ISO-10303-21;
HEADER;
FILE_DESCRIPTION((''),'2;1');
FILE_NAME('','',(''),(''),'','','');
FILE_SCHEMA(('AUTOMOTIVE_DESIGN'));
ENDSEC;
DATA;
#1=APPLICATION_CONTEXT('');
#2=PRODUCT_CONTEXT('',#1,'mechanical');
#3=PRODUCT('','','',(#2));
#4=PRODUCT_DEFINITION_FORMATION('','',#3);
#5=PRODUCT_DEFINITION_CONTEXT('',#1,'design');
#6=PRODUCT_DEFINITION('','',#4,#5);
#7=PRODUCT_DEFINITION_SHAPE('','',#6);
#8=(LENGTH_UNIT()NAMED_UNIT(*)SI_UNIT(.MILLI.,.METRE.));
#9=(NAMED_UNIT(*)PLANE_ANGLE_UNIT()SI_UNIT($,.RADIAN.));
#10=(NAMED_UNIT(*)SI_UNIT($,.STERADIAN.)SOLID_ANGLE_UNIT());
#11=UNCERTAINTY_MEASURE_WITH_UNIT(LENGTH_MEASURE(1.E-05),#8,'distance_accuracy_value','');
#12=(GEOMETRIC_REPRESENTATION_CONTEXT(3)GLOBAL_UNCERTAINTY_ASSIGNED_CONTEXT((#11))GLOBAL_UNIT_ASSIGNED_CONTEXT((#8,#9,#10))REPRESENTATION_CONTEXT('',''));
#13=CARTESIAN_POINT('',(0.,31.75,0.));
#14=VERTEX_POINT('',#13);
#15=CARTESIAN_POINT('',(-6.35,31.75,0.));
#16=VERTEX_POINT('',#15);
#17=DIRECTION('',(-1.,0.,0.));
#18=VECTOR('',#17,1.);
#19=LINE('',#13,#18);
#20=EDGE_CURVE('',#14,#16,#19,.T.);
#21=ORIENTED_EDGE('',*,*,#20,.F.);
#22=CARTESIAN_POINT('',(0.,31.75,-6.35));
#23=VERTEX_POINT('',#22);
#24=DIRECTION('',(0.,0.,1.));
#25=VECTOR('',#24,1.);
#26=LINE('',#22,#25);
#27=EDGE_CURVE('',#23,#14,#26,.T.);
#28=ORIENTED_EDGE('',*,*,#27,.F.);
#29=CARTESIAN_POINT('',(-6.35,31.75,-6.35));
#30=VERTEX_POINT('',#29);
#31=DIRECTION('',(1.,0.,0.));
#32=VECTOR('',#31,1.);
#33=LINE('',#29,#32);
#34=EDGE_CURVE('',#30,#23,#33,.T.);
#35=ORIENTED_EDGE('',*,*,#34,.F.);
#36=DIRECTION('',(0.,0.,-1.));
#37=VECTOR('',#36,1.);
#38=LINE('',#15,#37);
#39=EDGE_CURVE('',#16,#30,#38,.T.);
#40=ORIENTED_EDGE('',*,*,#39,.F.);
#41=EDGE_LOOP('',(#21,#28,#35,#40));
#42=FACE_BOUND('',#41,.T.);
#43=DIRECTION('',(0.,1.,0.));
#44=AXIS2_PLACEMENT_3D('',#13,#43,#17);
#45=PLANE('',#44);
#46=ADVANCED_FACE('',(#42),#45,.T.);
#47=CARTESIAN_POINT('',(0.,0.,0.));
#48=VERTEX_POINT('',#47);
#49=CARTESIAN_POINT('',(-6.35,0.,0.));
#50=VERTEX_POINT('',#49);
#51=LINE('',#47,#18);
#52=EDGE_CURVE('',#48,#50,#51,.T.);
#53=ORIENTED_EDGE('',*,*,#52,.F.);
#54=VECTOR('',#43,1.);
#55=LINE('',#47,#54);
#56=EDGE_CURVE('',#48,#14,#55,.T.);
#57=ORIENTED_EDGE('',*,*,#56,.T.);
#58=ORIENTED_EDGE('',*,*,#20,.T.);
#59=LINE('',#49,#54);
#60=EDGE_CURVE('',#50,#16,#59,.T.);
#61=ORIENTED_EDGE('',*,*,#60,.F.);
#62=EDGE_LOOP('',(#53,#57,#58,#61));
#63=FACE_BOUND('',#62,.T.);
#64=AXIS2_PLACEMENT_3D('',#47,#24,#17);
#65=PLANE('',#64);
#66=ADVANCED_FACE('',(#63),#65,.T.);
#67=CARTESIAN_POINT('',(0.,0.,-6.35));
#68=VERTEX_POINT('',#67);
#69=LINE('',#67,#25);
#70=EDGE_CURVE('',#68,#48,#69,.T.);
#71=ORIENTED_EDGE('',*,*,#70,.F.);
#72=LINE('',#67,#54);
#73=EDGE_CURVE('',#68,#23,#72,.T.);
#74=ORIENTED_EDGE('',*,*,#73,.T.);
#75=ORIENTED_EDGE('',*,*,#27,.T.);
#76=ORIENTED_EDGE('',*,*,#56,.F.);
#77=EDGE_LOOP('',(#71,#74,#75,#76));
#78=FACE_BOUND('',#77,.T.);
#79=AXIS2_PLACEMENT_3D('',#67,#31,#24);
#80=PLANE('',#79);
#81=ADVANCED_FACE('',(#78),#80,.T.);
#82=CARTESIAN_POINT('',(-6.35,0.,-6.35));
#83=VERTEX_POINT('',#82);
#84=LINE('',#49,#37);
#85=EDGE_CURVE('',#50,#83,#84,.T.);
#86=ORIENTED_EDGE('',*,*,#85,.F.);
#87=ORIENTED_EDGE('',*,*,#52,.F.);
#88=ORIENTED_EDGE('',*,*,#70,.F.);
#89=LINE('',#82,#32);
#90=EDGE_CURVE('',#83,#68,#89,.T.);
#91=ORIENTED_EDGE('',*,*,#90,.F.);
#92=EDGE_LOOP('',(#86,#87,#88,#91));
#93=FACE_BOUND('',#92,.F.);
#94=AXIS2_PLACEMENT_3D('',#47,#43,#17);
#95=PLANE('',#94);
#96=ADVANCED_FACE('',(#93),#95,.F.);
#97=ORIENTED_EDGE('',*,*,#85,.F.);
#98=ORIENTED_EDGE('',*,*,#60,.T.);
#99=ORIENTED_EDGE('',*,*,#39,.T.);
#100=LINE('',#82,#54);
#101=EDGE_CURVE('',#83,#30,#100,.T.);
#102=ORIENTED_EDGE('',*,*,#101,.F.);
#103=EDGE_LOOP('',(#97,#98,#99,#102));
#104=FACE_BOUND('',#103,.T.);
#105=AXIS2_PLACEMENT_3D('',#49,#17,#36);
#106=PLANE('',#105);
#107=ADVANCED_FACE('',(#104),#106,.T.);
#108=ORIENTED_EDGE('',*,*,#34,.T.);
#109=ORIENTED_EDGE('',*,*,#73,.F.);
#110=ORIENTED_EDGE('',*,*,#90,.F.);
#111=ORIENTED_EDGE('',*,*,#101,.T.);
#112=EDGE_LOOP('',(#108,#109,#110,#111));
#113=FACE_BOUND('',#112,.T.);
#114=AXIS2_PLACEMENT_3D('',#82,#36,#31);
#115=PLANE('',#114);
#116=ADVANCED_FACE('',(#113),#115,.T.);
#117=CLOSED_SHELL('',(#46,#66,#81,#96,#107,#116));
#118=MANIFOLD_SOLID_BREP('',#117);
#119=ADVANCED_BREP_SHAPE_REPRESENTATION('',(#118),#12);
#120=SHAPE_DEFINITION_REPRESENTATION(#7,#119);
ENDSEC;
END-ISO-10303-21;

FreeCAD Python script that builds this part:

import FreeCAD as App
import Part
import Sketcher
from FreeCAD import Vector
Q = App.Units.Quantity


def add_polygon(sketch, points):
    """Adds a closed chain of lines whose ends are joined by coincident constraints."""
    first, n = sketch.GeometryCount, len(points)
    for a, b in zip(points, points[1:] + points[:1]):
        sketch.addGeometry(Part.LineSegment(App.Vector(*a, 0), App.Vector(*b, 0)), False)
    for i in range(n):
        sketch.addConstraint(Sketcher.Constraint("Coincident", first + i, 2, first + (i + 1) % n, 1))

doc = App.newDocument("Part")
body = doc.addObject("PartDesign::Body", "Body")

# Sketch on XZ plane
sketch1 = body.newObject("Sketcher::SketchObject", "Sketch")
sketch1.AttachmentSupport = (doc.getObject("XZ_Plane"), [""])
sketch1.MapMode = "FlatFace"
add_polygon(sketch1, [(-6, 0), (0, 0), (0, -6), (-6, -6)])  # lines 0-3
sketch1.addConstraint(Sketcher.Constraint("Horizontal", 0))
sketch1.addConstraint(Sketcher.Constraint("Vertical", 1))
sketch1.addConstraint(Sketcher.Constraint("Horizontal", 2))
sketch1.addConstraint(Sketcher.Constraint("Vertical", 3))
sketch1.addConstraint(Sketcher.Constraint("Coincident", 0, 2, -1, 1))
sketch1.addConstraint(Sketcher.Constraint("Equal", 2, 1))
sketch1.addConstraint(Sketcher.Constraint("DistanceX", 0, 1, 0, 2, Q("0.25 in")))
pad1 = body.newObject("PartDesign::Pad", "Pad")
pad1.Profile = sketch1
pad1.Length = Q("1.25 in")
pad1.Reversed = True

doc.recompute()
